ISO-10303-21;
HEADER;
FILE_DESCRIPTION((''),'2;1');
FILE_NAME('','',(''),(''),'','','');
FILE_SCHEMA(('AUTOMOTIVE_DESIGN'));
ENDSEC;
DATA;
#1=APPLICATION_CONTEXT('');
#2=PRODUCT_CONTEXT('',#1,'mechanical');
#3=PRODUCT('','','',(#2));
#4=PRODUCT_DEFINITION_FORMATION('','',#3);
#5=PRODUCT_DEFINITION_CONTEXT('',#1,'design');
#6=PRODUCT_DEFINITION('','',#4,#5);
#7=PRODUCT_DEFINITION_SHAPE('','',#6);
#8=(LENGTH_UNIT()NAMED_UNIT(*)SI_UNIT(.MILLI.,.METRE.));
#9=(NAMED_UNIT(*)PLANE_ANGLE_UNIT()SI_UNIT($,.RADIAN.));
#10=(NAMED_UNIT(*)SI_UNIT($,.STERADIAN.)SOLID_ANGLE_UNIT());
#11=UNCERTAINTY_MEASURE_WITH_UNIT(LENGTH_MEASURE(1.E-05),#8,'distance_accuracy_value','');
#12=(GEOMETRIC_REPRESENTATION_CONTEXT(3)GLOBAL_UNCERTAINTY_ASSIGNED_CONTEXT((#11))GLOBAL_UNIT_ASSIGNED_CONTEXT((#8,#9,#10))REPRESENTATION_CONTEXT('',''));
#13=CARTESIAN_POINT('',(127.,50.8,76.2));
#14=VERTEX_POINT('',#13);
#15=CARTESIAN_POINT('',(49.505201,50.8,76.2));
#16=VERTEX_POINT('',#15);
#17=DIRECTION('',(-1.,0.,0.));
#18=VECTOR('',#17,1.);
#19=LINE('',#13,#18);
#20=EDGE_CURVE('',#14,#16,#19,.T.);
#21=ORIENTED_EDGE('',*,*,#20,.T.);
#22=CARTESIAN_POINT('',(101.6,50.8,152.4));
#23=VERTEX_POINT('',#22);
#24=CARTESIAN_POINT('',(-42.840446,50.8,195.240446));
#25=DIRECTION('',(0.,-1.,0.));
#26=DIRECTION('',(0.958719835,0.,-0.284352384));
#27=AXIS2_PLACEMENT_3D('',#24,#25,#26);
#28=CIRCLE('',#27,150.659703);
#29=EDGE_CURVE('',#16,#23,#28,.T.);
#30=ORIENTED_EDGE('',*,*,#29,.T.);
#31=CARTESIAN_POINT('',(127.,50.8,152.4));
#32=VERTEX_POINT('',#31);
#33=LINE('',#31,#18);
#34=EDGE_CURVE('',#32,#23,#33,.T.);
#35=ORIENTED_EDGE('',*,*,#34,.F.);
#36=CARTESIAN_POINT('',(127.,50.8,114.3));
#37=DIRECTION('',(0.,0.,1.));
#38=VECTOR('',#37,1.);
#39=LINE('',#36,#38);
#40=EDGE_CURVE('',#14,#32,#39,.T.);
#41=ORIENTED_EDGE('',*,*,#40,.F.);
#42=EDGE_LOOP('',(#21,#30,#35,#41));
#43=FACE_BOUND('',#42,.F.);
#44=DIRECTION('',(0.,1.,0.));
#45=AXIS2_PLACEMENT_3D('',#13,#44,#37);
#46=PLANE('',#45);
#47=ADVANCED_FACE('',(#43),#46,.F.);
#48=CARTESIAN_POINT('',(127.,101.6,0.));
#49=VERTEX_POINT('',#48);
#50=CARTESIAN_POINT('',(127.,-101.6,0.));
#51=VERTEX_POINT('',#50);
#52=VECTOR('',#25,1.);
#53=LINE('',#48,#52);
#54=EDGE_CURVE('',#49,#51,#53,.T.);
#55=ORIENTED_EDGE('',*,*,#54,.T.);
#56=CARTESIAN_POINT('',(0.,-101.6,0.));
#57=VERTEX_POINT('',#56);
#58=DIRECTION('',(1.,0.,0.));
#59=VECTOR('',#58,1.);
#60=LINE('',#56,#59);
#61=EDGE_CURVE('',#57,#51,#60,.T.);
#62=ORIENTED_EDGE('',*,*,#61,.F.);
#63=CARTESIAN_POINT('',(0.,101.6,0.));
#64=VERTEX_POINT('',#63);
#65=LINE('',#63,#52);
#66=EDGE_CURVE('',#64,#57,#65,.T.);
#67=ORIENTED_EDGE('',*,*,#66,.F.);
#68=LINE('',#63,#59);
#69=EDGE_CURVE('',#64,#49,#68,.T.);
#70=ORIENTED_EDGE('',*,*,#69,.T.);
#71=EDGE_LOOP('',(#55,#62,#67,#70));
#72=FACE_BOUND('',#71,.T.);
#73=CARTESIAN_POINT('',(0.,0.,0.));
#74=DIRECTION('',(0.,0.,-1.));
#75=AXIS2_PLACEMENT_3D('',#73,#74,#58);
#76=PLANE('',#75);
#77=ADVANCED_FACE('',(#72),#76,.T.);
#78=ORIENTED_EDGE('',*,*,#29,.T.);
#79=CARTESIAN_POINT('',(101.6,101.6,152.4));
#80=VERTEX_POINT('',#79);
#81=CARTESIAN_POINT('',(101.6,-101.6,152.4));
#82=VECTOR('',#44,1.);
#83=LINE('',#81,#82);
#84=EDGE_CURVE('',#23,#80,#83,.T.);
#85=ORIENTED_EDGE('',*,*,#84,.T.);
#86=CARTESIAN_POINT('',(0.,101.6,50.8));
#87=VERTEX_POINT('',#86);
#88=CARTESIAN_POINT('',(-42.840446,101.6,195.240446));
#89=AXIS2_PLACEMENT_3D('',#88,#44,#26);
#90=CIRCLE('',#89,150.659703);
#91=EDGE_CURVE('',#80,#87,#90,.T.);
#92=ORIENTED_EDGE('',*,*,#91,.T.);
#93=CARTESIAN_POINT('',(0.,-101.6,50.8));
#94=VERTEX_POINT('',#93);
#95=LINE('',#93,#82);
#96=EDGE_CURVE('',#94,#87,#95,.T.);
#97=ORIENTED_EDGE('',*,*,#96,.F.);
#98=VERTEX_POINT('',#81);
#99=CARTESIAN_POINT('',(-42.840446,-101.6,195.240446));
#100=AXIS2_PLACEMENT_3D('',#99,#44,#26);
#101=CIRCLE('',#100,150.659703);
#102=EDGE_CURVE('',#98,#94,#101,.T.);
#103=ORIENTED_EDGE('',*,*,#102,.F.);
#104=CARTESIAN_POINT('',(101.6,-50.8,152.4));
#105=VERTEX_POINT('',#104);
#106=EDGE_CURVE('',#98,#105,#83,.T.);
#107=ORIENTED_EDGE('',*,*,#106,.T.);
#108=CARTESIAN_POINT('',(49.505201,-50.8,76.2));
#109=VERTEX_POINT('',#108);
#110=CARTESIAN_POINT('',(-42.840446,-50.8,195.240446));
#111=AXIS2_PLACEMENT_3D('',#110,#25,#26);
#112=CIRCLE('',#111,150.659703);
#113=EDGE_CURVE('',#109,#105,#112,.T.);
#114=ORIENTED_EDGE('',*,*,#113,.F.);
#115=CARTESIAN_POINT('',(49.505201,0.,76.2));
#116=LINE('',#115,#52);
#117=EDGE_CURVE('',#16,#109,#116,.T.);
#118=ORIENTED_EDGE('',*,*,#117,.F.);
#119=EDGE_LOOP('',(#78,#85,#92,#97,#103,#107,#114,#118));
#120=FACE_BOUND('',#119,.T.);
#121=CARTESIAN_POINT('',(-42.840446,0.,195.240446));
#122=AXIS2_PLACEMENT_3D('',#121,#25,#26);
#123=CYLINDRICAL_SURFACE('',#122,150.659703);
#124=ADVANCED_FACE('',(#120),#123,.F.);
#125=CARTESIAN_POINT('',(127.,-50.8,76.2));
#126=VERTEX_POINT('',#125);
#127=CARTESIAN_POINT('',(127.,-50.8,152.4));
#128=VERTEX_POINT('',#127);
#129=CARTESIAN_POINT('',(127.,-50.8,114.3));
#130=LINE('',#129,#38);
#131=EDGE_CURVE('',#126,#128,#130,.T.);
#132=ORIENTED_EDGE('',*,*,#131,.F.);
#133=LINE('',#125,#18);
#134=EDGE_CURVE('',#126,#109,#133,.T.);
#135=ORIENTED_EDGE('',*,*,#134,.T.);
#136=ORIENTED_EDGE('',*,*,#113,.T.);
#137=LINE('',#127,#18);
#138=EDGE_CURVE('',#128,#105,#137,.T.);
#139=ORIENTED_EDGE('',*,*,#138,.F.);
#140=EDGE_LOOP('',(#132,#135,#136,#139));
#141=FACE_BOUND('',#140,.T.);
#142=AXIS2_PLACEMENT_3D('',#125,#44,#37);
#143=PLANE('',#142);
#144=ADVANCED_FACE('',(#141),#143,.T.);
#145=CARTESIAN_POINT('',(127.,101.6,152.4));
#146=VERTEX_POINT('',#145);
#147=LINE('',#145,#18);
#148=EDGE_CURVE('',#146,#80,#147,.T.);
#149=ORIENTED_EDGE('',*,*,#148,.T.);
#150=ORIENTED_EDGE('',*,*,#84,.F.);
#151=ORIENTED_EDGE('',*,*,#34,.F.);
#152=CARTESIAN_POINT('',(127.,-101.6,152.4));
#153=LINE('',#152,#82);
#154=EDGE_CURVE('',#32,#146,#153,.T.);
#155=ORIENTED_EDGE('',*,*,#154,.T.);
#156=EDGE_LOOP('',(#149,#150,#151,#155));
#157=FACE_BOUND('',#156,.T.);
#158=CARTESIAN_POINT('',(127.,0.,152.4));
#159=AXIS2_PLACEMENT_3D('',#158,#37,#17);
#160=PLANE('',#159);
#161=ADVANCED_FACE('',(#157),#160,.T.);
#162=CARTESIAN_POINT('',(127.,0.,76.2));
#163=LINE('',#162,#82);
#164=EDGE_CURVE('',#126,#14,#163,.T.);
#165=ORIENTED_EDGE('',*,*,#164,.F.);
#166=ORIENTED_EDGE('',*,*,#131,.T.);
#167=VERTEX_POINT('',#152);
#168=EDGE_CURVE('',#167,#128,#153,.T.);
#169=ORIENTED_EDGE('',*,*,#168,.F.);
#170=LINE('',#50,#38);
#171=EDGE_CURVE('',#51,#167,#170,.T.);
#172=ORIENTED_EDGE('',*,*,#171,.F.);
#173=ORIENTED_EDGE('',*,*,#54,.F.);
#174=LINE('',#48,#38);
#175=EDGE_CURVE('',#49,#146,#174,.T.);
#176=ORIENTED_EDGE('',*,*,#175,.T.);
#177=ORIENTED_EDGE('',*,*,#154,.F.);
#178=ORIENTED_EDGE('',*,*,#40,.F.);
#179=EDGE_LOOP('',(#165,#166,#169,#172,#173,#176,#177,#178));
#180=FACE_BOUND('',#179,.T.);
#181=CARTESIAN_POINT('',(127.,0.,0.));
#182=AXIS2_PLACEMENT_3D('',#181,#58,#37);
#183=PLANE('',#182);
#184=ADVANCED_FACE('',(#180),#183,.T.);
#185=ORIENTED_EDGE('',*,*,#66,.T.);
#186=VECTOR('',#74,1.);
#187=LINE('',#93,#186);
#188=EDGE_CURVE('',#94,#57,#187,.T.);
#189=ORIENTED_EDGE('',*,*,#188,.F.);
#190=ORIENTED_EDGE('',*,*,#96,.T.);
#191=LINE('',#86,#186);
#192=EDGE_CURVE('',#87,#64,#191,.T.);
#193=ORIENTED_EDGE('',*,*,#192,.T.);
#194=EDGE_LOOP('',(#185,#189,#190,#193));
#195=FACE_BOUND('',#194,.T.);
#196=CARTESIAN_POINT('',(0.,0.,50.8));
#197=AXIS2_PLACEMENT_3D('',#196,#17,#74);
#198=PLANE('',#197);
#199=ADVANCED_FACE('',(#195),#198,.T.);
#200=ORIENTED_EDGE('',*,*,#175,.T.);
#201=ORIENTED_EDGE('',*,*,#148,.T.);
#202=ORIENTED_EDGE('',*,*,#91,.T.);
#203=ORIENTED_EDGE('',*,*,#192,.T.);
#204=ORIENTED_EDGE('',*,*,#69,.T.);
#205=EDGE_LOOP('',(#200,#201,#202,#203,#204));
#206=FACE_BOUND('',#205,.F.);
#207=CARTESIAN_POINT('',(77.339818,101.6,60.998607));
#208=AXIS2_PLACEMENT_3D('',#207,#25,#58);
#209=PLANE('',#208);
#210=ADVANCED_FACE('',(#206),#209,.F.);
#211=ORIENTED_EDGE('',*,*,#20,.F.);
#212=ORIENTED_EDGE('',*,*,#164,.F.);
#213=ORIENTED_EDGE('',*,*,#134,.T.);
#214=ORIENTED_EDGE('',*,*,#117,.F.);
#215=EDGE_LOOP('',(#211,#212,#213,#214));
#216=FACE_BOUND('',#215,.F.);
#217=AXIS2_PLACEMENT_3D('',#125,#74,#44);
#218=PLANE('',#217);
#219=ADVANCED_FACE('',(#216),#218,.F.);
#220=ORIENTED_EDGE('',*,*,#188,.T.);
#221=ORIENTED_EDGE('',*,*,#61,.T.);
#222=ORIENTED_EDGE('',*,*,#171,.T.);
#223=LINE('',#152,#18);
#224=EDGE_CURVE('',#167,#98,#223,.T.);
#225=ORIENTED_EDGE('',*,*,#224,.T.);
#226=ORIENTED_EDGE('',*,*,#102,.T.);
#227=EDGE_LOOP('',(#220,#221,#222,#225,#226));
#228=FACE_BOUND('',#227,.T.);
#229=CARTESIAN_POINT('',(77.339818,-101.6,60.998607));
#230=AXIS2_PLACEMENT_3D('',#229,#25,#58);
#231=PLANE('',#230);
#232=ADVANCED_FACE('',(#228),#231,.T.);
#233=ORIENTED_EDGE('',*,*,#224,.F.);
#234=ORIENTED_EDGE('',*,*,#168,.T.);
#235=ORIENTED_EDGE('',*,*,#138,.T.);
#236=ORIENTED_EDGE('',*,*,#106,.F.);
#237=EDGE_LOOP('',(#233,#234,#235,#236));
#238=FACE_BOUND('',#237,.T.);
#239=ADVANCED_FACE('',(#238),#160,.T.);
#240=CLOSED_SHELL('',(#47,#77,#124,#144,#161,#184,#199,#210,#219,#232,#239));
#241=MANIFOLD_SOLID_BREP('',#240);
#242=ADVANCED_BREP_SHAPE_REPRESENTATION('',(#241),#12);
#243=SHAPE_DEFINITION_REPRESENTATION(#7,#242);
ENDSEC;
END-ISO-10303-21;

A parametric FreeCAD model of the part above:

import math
import FreeCAD as App
import Part
import Sketcher
Q = App.Units.Quantity

doc = App.newDocument("Part")
body = doc.addObject("PartDesign::Body", "Body")

# Sketch on XZ plane
sketch1 = body.newObject("Sketcher::SketchObject", "Sketch")
sketch1.AttachmentSupport = (doc.getObject("XZ_Plane"), [""])
sketch1.MapMode = "FlatFace"
sketch1.addGeometry([
    Part.LineSegment(App.Vector(0, 51, 0), App.Vector(0, 0, 0)),  # 0
    Part.LineSegment(App.Vector(0, 0, 0), App.Vector(127, 0, 0)),  # 1
    Part.LineSegment(App.Vector(127, 0, 0), App.Vector(127, 152, 0)),  # 2
    Part.LineSegment(App.Vector(127, 152, 0), App.Vector(102, 152, 0)),  # 3
    Part.ArcOfCircle(Part.Circle(App.Vector(-43, 195, 0), App.Vector(0, 0, 1), 151), math.radians(-73), math.radians(-17)),  # 4
], False)
sketch1.addConstraint([
    Sketcher.Constraint("Coincident", 0, 2, 1, 1),
    Sketcher.Constraint("Coincident", 1, 2, 2, 1),
    Sketcher.Constraint("Coincident", 2, 2, 3, 1),
    Sketcher.Constraint("Coincident", 3, 2, 4, 2),
    Sketcher.Constraint("Coincident", 4, 1, 0, 1),
    Sketcher.Constraint("Vertical", 0),
    Sketcher.Constraint("Horizontal", 1),
    Sketcher.Constraint("Vertical", 2),
    Sketcher.Constraint("Horizontal", 3),
    Sketcher.Constraint("Coincident", 0, 2, -1, 1),
    Sketcher.Constraint("DistanceX", 1, 1, 1, 2, Q("5 in")),
    Sketcher.Constraint("DistanceX", 3, 2, 3, 1, Q("1 in")),
    Sketcher.Constraint("DistanceY", 0, 2, 0, 1, Q("2 in")),
    Sketcher.Constraint("DistanceY", 2, 1, 2, 2, Q("6 in")),
    Sketcher.Constraint("Radius", 4, Q("150.659703 mm")),
])
pad1 = body.newObject("PartDesign::Pad", "Pad")
pad1.Profile = sketch1
pad1.Length = Q("8 in")
pad1.Midplane = True

# Sketch on YZ plane
sketch2 = body.newObject("Sketcher::SketchObject", "Sketch001")
sketch2.AttachmentSupport = (doc.getObject("YZ_Plane"), [""])
sketch2.MapMode = "FlatFace"
sketch2.AttachmentOffset = App.Placement(App.Vector(0, 0, 5 * 25.4), App.Rotation())
sketch2.addGeometry([
    Part.LineSegment(App.Vector(-51, 152, 0), App.Vector(-51, 76, 0)),
    Part.LineSegment(App.Vector(-51, 76, 0), App.Vector(51, 76, 0)),
    Part.LineSegment(App.Vector(51, 76, 0), App.Vector(51, 152, 0)),
    Part.LineSegment(App.Vector(51, 152, 0), App.Vector(-51, 152, 0)),
], False)
sketch2.addConstraint([
    Sketcher.Constraint("Coincident", 0, 2, 1, 1),
    Sketcher.Constraint("Coincident", 1, 2, 2, 1),
    Sketcher.Constraint("Coincident", 2, 2, 3, 1),
    Sketcher.Constraint("Coincident", 3, 2, 0, 1),
    Sketcher.Constraint("Vertical", 0),
    Sketcher.Constraint("Horizontal", 1),
    Sketcher.Constraint("Vertical", 2),
    Sketcher.Constraint("Horizontal", 3),
    Sketcher.Constraint("DistanceX", 1, 1, 1, 2, Q("4 in")),
    Sketcher.Constraint("DistanceY", 0, 2, 0, 1, Q("3 in")),
    Sketcher.Constraint("DistanceX", 0, 2, -1, 1, Q("2 in")),
    Sketcher.Constraint("DistanceY", -1, 1, 0, 2, Q("3 in")),
])
pocket1 = body.newObject("PartDesign::Pocket", "Pocket")
pocket1.Profile = sketch2
pocket1.Type = "ThroughAll"

doc.recompute()
